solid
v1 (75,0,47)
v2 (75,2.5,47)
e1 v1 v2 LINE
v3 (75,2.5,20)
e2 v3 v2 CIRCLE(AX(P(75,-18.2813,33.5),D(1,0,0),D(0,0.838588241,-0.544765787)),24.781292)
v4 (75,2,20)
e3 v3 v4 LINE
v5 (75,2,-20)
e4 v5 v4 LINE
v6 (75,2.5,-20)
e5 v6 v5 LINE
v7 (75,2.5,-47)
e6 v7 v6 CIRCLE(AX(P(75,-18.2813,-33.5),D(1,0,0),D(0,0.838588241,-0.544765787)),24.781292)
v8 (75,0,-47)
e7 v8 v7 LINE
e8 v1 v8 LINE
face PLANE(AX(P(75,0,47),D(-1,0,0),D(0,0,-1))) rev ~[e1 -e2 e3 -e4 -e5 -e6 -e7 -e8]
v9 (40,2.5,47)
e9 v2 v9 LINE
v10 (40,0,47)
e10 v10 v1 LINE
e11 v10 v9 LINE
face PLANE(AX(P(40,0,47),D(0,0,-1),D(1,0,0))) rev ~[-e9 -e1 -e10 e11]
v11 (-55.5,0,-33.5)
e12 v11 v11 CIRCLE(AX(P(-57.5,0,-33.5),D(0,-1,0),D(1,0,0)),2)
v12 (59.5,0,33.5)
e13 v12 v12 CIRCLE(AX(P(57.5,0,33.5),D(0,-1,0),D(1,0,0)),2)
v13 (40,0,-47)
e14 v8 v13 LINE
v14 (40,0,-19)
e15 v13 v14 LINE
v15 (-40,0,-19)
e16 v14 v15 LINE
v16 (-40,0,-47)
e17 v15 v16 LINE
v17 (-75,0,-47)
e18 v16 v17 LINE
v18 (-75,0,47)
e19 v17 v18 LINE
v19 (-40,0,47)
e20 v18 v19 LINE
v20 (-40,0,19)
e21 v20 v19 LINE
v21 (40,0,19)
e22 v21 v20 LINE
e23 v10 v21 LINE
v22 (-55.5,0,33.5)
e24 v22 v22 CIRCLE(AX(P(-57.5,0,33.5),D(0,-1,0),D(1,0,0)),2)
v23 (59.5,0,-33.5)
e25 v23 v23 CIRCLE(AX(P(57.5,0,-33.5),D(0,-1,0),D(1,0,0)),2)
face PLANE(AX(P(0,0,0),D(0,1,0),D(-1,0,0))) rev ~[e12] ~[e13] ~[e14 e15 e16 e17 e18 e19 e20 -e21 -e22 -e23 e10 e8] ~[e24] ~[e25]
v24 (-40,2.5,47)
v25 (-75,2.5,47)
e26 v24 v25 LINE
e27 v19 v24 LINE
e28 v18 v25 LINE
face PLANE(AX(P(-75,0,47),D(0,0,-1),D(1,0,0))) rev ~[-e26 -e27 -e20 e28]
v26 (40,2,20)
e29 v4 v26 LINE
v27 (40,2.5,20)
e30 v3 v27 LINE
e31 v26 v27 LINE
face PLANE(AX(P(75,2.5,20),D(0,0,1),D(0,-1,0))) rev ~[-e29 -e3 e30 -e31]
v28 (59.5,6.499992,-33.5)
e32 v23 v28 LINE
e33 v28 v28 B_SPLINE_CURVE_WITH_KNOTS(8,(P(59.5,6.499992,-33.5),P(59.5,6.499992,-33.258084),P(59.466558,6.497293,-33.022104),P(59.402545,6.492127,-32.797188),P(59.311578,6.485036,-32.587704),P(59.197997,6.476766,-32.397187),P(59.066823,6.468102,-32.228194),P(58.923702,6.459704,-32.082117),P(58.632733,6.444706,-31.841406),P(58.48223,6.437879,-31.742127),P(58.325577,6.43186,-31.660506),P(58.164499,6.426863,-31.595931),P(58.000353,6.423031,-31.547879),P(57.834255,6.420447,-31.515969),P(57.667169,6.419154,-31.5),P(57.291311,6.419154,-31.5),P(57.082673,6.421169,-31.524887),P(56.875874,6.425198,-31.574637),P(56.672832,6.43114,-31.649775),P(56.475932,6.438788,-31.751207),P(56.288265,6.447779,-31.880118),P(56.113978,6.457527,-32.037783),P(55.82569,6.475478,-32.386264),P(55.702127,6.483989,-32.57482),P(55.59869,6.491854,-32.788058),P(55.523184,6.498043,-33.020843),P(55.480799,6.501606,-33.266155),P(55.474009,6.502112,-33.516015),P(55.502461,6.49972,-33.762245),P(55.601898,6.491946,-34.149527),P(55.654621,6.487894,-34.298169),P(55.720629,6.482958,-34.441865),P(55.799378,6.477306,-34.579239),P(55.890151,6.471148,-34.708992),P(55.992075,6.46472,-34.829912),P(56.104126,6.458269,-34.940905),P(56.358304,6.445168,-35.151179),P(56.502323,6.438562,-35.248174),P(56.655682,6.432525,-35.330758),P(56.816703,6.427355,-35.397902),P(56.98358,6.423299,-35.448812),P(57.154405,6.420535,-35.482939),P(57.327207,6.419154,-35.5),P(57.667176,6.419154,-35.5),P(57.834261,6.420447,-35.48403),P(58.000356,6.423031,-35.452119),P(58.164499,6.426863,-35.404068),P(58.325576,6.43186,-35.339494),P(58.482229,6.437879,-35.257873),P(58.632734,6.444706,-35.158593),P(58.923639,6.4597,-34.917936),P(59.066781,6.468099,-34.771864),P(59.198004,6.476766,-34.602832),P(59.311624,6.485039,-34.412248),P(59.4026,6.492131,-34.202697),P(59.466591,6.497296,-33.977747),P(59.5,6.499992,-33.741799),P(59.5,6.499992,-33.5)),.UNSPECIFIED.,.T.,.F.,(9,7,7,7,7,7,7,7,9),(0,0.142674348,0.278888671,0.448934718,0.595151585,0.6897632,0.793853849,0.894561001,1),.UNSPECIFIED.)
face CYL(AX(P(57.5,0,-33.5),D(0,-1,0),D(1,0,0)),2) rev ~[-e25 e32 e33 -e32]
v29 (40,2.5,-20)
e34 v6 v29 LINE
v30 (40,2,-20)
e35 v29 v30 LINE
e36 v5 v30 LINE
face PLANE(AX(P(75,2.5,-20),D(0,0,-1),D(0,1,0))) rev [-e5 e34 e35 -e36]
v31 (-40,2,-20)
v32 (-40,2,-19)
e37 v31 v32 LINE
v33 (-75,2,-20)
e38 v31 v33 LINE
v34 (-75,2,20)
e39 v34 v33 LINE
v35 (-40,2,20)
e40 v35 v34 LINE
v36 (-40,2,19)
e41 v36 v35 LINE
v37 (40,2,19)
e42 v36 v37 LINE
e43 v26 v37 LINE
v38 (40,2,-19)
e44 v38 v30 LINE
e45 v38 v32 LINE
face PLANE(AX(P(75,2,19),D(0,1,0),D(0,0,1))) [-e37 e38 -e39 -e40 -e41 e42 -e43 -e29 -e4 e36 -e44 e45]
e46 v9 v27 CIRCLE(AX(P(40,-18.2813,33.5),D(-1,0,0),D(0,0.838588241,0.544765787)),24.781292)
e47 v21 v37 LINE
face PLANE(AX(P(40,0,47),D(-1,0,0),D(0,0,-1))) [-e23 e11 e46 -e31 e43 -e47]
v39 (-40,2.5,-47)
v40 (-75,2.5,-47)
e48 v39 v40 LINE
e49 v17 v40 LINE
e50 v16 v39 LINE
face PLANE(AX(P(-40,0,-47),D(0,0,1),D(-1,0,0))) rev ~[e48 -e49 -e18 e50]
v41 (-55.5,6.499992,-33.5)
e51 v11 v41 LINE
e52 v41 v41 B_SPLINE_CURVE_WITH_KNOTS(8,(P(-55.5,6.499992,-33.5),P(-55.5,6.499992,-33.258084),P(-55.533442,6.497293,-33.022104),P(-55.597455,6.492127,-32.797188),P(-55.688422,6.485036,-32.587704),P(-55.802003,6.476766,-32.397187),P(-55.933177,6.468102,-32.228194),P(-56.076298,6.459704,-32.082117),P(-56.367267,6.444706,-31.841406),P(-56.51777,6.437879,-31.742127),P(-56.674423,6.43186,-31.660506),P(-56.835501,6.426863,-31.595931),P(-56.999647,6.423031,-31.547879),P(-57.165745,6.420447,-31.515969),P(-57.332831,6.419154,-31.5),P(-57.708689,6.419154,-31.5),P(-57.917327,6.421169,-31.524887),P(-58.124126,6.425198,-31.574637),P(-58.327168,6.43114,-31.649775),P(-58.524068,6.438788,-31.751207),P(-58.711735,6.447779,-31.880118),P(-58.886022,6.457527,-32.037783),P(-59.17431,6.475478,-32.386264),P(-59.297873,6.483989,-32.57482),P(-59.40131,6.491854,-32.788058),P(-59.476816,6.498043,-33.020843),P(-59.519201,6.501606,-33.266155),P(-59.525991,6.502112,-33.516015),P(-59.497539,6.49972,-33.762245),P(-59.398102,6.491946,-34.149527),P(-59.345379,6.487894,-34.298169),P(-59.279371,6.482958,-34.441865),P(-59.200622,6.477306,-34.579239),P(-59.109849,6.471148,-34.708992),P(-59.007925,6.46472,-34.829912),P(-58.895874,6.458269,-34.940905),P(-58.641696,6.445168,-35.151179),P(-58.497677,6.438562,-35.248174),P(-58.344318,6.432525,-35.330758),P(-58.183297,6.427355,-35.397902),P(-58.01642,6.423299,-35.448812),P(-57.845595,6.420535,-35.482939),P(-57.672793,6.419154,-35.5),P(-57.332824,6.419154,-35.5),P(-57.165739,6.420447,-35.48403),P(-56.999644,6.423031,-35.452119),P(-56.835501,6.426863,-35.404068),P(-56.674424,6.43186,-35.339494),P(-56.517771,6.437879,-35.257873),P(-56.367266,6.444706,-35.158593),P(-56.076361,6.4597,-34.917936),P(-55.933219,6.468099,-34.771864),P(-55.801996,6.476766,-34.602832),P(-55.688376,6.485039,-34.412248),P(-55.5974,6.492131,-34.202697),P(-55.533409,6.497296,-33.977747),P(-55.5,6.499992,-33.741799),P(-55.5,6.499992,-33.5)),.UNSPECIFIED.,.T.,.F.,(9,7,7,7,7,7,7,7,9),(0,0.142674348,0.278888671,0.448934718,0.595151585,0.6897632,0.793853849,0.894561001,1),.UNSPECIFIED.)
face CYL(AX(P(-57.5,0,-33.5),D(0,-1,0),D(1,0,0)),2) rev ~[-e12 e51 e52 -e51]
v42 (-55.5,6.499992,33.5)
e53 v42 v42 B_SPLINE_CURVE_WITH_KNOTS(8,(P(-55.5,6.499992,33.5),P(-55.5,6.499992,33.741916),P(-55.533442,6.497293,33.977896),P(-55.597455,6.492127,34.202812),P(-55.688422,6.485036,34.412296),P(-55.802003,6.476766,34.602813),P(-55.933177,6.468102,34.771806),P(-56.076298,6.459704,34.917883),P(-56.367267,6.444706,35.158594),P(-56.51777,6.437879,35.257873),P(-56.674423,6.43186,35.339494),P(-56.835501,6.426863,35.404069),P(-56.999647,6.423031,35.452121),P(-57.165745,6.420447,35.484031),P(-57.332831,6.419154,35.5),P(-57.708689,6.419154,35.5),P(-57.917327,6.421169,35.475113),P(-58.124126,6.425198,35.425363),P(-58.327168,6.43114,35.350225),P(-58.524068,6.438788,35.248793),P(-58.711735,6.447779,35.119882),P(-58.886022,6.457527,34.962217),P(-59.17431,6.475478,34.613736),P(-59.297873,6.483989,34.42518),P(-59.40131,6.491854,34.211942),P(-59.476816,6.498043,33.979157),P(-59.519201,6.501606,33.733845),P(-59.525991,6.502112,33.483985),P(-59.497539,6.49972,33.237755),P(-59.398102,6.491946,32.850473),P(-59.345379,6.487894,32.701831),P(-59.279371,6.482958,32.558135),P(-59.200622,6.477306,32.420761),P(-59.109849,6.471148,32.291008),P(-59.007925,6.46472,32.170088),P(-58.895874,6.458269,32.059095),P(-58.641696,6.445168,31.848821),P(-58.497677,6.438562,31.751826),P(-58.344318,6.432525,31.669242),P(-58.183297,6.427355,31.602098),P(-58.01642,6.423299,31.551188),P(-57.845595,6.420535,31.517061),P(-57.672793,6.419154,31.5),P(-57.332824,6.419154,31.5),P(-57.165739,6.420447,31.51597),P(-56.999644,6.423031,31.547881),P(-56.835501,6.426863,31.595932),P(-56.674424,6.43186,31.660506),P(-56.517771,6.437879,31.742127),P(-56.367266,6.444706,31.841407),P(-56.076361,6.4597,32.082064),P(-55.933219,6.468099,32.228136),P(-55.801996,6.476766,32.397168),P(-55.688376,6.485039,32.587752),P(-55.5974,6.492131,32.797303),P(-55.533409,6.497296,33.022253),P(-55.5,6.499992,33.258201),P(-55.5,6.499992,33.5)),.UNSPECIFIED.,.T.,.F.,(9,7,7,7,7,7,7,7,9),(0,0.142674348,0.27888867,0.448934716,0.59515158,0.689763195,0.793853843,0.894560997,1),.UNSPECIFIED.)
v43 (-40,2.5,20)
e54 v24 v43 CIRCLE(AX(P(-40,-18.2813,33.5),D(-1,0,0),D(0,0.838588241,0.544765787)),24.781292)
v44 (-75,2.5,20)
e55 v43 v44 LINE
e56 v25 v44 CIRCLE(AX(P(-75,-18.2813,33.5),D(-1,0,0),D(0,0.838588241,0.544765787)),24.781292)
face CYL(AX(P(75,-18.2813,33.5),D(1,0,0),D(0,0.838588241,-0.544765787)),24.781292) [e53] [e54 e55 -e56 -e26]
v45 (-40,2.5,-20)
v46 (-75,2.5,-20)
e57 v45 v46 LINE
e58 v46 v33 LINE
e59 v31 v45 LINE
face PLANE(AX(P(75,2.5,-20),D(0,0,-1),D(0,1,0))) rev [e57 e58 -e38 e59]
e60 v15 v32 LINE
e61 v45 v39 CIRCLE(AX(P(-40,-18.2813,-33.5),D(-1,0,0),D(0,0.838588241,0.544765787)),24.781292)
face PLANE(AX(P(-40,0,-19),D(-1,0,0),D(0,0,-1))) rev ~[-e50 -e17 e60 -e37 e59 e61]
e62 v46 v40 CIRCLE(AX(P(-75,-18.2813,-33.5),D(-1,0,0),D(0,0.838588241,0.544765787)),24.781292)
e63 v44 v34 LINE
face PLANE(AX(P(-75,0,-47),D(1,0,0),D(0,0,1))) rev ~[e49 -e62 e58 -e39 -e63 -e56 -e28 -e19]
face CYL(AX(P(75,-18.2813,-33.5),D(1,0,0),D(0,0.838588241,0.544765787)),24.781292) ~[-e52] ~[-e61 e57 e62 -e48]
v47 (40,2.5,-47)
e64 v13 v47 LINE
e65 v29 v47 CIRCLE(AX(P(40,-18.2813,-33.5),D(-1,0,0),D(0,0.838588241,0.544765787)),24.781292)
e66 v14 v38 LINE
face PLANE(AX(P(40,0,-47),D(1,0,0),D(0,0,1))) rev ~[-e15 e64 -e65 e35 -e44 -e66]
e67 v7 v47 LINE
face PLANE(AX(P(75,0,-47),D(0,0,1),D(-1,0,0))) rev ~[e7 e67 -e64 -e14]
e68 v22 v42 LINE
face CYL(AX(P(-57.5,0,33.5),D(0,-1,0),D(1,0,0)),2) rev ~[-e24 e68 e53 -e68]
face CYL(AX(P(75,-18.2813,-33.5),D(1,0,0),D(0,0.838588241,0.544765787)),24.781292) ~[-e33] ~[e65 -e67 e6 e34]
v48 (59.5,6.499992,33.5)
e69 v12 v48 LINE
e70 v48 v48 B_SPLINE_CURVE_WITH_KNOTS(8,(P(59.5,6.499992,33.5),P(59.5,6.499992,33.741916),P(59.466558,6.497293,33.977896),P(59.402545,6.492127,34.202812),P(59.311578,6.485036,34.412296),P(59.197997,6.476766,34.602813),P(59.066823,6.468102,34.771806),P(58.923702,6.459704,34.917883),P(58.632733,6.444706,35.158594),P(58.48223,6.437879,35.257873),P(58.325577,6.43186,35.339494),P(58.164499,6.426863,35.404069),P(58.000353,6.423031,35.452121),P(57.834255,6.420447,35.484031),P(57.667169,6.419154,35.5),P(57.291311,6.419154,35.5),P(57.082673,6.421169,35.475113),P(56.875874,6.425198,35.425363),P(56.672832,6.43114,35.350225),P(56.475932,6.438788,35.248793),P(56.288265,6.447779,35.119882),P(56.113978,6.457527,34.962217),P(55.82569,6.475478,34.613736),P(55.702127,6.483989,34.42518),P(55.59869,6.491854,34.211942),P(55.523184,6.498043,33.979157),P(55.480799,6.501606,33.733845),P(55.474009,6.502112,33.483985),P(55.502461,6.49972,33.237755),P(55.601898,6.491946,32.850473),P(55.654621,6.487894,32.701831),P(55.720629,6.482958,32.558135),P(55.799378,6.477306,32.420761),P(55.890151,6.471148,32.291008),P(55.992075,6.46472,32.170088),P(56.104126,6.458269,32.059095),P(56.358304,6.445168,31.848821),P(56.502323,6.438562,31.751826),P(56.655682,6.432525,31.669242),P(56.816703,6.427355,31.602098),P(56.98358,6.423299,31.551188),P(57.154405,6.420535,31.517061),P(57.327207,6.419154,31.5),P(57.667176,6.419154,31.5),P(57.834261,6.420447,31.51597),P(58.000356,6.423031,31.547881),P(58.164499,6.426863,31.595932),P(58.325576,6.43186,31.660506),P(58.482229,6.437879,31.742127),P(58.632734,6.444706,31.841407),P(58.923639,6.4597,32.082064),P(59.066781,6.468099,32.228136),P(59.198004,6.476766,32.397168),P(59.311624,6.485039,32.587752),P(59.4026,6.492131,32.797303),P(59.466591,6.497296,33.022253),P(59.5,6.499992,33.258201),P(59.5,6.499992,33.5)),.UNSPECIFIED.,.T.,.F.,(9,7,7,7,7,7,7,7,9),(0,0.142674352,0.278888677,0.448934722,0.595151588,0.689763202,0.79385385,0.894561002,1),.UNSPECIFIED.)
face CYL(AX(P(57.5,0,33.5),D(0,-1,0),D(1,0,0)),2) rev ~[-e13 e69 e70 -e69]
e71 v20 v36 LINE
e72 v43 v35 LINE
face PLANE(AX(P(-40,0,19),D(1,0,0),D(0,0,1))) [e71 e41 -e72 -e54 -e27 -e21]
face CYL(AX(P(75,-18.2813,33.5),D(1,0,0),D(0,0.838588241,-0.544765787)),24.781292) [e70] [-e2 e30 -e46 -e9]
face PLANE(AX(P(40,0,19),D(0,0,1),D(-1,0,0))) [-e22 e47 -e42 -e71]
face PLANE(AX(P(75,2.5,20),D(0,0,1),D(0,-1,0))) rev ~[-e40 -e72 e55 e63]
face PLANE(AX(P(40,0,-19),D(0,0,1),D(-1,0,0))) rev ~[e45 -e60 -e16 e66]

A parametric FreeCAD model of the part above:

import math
import FreeCAD as App
import Part
import Sketcher

doc = App.newDocument("Part")
body = doc.addObject("PartDesign::Body", "Body")

sketch1 = doc.addObject("Sketcher::SketchObject", "Sketch")
body.addObject(sketch1)
sketch1.AttachmentSupport = (doc.XZ_Plane, [""])
sketch1.MapMode = "FlatFace"
sketch1.addGeometry(Part.LineSegment(App.Vector(-40, -47, 0), App.Vector(-75, -47, 0)), False)
sketch1.addGeometry(Part.LineSegment(App.Vector(-75, -47, 0), App.Vector(-75, 47, 0)), False)
sketch1.addGeometry(Part.LineSegment(App.Vector(-75, 47, 0), App.Vector(-40, 47, 0)), False)
sketch1.addGeometry(Part.LineSegment(App.Vector(-40, 47, 0), App.Vector(-40, 19, 0)), False)
sketch1.addGeometry(Part.LineSegment(App.Vector(-40, 19, 0), App.Vector(40, 19, 0)), False)
sketch1.addGeometry(Part.LineSegment(App.Vector(40, 19, 0), App.Vector(40, 47, 0)), False)
sketch1.addGeometry(Part.LineSegment(App.Vector(40, 47, 0), App.Vector(75, 47, 0)), False)
sketch1.addGeometry(Part.LineSegment(App.Vector(75, 47, 0), App.Vector(75, -47, 0)), False)
sketch1.addGeometry(Part.LineSegment(App.Vector(75, -47, 0), App.Vector(40, -47, 0)), False)
sketch1.addGeometry(Part.LineSegment(App.Vector(40, -47, 0), App.Vector(40, -19, 0)), False)
sketch1.addGeometry(Part.LineSegment(App.Vector(40, -19, 0), App.Vector(-40, -19, 0)), False)
sketch1.addGeometry(Part.LineSegment(App.Vector(-40, -19, 0), App.Vector(-40, -47, 0)), False)
sketch1.addConstraint(Sketcher.Constraint("Coincident", 0, 2, 1, 1))
sketch1.addConstraint(Sketcher.Constraint("Coincident", 1, 2, 2, 1))
sketch1.addConstraint(Sketcher.Constraint("Coincident", 2, 2, 3, 1))
sketch1.addConstraint(Sketcher.Constraint("Coincident", 3, 2, 4, 1))
sketch1.addConstraint(Sketcher.Constraint("Coincident", 4, 2, 5, 1))
sketch1.addConstraint(Sketcher.Constraint("Coincident", 5, 2, 6, 1))
sketch1.addConstraint(Sketcher.Constraint("Coincident", 6, 2, 7, 1))
sketch1.addConstraint(Sketcher.Constraint("Coincident", 7, 2, 8, 1))
sketch1.addConstraint(Sketcher.Constraint("Coincident", 8, 2, 9, 1))
sketch1.addConstraint(Sketcher.Constraint("Coincident", 9, 2, 10, 1))
sketch1.addConstraint(Sketcher.Constraint("Coincident", 10, 2, 11, 1))
sketch1.addConstraint(Sketcher.Constraint("Coincident", 11, 2, 0, 1))
sketch1.addConstraint(Sketcher.Constraint("Horizontal", 0))
sketch1.addConstraint(Sketcher.Constraint("Vertical", 1))
sketch1.addConstraint(Sketcher.Constraint("Horizontal", 2))
sketch1.addConstraint(Sketcher.Constraint("Vertical", 3))
sketch1.addConstraint(Sketcher.Constraint("Horizontal", 4))
sketch1.addConstraint(Sketcher.Constraint("Vertical", 5))
sketch1.addConstraint(Sketcher.Constraint("Horizontal", 6))
sketch1.addConstraint(Sketcher.Constraint("Vertical", 7))
sketch1.addConstraint(Sketcher.Constraint("Horizontal", 8))
sketch1.addConstraint(Sketcher.Constraint("Vertical", 9))
sketch1.addConstraint(Sketcher.Constraint("Horizontal", 10))
sketch1.addConstraint(Sketcher.Constraint("Vertical", 11))
sketch1.addConstraint(Sketcher.Constraint("Symmetric", 0, 2, 6, 2, -1, 1))
sketch1.addConstraint(Sketcher.Constraint("Symmetric", 2, 2, 8, 2, -1, 1))
sketch1.addConstraint(Sketcher.Constraint("Symmetric", 4, 2, 10, 2, -1, 1))
sketch1.addConstraint(Sketcher.Constraint("Symmetric", 2, 2, 5, 2, -2))
sketch1.addConstraint(Sketcher.Constraint("DistanceX", 0, 2, 0, 1, 35.0))
sketch1.addConstraint(Sketcher.Constraint("DistanceX", 4, 1, 4, 2, 80.0))
sketch1.addConstraint(Sketcher.Constraint("DistanceY", 1, 1, 1, 2, 94.0))
sketch1.addConstraint(Sketcher.Constraint("DistanceY", 3, 2, 3, 1, 28.0))
pad1 = doc.addObject("PartDesign::Pad", "Pad")
body.addObject(pad1)
pad1.Profile = sketch1
pad1.Length = 6.5
pad1.Reversed = True

sketch2 = doc.addObject("Sketcher::SketchObject", "Sketch001")
body.addObject(sketch2)
sketch2.AttachmentSupport = (doc.XZ_Plane, [""])
sketch2.MapMode = "FlatFace"
sketch2.AttachmentOffset = App.Placement(App.Vector(0, 0, -6.5), App.Rotation())
sketch2.addGeometry(Part.LineSegment(App.Vector(75, -19, 0), App.Vector(-75, -19, 0)), False)
sketch2.addGeometry(Part.LineSegment(App.Vector(-75, -19, 0), App.Vector(-75, 19, 0)), False)
sketch2.addGeometry(Part.LineSegment(App.Vector(-75, 19, 0), App.Vector(75, 19, 0)), False)
sketch2.addGeometry(Part.LineSegment(App.Vector(75, 19, 0), App.Vector(75, -19, 0)), False)
sketch2.addConstraint(Sketcher.Constraint("Coincident", 0, 2, 1, 1))
sketch2.addConstraint(Sketcher.Constraint("Coincident", 1, 2, 2, 1))
sketch2.addConstraint(Sketcher.Constraint("Coincident", 2, 2, 3, 1))
sketch2.addConstraint(Sketcher.Constraint("Coincident", 3, 2, 0, 1))
sketch2.addConstraint(Sketcher.Constraint("Horizontal", 0))
sketch2.addConstraint(Sketcher.Constraint("Vertical", 1))
sketch2.addConstraint(Sketcher.Constraint("Horizontal", 2))
sketch2.addConstraint(Sketcher.Constraint("Vertical", 3))
sketch2.addConstraint(Sketcher.Constraint("Symmetric", 0, 2, 2, 2, -1, 1))
sketch2.addConstraint(Sketcher.Constraint("DistanceX", 0, 2, 0, 1, 150.0))
sketch2.addConstraint(Sketcher.Constraint("DistanceY", 1, 1, 1, 2, 38.0))
pocket1 = doc.addObject("PartDesign::Pocket", "Pocket")
body.addObject(pocket1)
pocket1.Profile = sketch2
pocket1.Length = 4.5
pocket1.Reversed = True

sketch3 = doc.addObject("Sketcher::SketchObject", "Sketch002")
body.addObject(sketch3)
sketch3.AttachmentSupport = (doc.YZ_Plane, [""])
sketch3.MapMode = "FlatFace"
sketch3.AttachmentOffset = App.Placement(App.Vector(0, 0, 75), App.Rotation())
sketch3.addGeometry(Part.LineSegment(App.Vector(2, 19, 0), App.Vector(6.5, 19, 0)), False)
sketch3.addGeometry(Part.LineSegment(App.Vector(6.5, 19, 0), App.Vector(6.5, 33.5, 0)), False)
sketch3.addGeometry(Part.ArcOfCircle(Part.Circle(App.Vector(-18.3, 33.5, 0), App.Vector(0, 0, 1), 24.8), math.radians(-33), math.radians(0)), False)
sketch3.addGeometry(Part.LineSegment(App.Vector(2.5, 20, 0), App.Vector(2, 20, 0)), False)
sketch3.addGeometry(Part.LineSegment(App.Vector(2, 20, 0), App.Vector(2, 19, 0)), False)
sketch3.addGeometry(Part.ArcOfCircle(Part.Circle(App.Vector(-18.3, 33.5, 0), App.Vector(0, 0, 1), 24.8), math.radians(0), math.radians(33)), False)
sketch3.addGeometry(Part.LineSegment(App.Vector(6.5, 33.5, 0), App.Vector(6.5, 47, 0)), False)
sketch3.addGeometry(Part.LineSegment(App.Vector(6.5, 47, 0), App.Vector(2.5, 47, 0)), False)
sketch3.addConstraint(Sketcher.Constraint("Coincident", 0, 2, 1, 1))
sketch3.addConstraint(Sketcher.Constraint("Tangent", 1, 2, 2, 2))
sketch3.addConstraint(Sketcher.Constraint("Coincident", 2, 1, 3, 1))
sketch3.addConstraint(Sketcher.Constraint("Coincident", 3, 2, 4, 1))
sketch3.addConstraint(Sketcher.Constraint("Coincident", 4, 2, 0, 1))
sketch3.addConstraint(Sketcher.Constraint("Tangent", 5, 1, 6, 1))
sketch3.addConstraint(Sketcher.Constraint("Coincident", 6, 2, 7, 1))
sketch3.addConstraint(Sketcher.Constraint("Coincident", 7, 2, 5, 2))
sketch3.addConstraint(Sketcher.Constraint("Horizontal", 0))
sketch3.addConstraint(Sketcher.Constraint("Vertical", 1))
sketch3.addConstraint(Sketcher.Constraint("Horizontal", 3))
sketch3.addConstraint(Sketcher.Constraint("Vertical", 4))
sketch3.addConstraint(Sketcher.Constraint("Vertical", 6))
sketch3.addConstraint(Sketcher.Constraint("Horizontal", 7))
sketch3.addConstraint(Sketcher.Constraint("Coincident", 5, 3, 2, 3))
sketch3.addConstraint(Sketcher.Constraint("Equal", 2, 5))
sketch3.addConstraint(Sketcher.Constraint("Vertical", 2, 1, 7, 2))
sketch3.addConstraint(Sketcher.Constraint("DistanceY", 6, 1, 6, 2, 13.5))
sketch3.addConstraint(Sketcher.Constraint("DistanceX", -1, 1, 0, 2, 6.5))
sketch3.addConstraint(Sketcher.Constraint("DistanceX", -1, 1, 2, 1, 2.5))
sketch3.addConstraint(Sketcher.Constraint("DistanceY", 4, 2, 4, 1, 1.0))
sketch3.addConstraint(Sketcher.Constraint("DistanceX", 0, 1, 0, 2, 4.5))
sketch3.addConstraint(Sketcher.Constraint("DistanceY", -1, 1, 0, 2, 19.0))
pocket2 = doc.addObject("PartDesign::Pocket", "Pocket001")
body.addObject(pocket2)
pocket2.Profile = sketch3
pocket2.Type = "ThroughAll"
doc.recompute()

mirrored = doc.addObject("PartDesign::Mirrored", "Mirrored")
body.addObject(mirrored)
mirrored.Originals = [pocket2]
mirrored.MirrorPlane = (doc.XY_Plane, [""])
body.Tip = mirrored

sketch4 = doc.addObject("Sketcher::SketchObject", "Sketch003")
body.addObject(sketch4)
sketch4.AttachmentSupport = (doc.XZ_Plane, [""])
sketch4.MapMode = "FlatFace"
sketch4.addGeometry(Part.Circle(App.Vector(57.5, 33.5, 0), App.Vector(0, 0, 1), 2), False)
sketch4.addGeometry(Part.Circle(App.Vector(57.5, -33.5, 0), App.Vector(0, 0, 1), 2), False)
sketch4.addGeometry(Part.Circle(App.Vector(-57.5, 33.5, 0), App.Vector(0, 0, 1), 2), False)
sketch4.addGeometry(Part.Circle(App.Vector(-57.5, -33.5, 0), App.Vector(0, 0, 1), 2), False)
sketch4.addConstraint(Sketcher.Constraint("Equal", 0, 1))
sketch4.addConstraint(Sketcher.Constraint("Equal", 1, 2))
sketch4.addConstraint(Sketcher.Constraint("Equal", 2, 3))
sketch4.addConstraint(Sketcher.Constraint("Symmetric", 1, 3, 2, 3, -1, 1))
sketch4.addConstraint(Sketcher.Constraint("Symmetric", 0, 3, 3, 3, -1, 1))
sketch4.addConstraint(Sketcher.Constraint("Symmetric", 0, 3, 2, 3, -2))
sketch4.addConstraint(Sketcher.Constraint("Diameter", 0, 4.0))
sketch4.addConstraint(Sketcher.Constraint("DistanceY", 1, 3, 0, 3, 67.0))
sketch4.addConstraint(Sketcher.Constraint("DistanceX", 2, 3, 0, 3, 115.0))
pocket3 = doc.addObject("PartDesign::Pocket", "Pocket002")
body.addObject(pocket3)
pocket3.Profile = sketch4
pocket3.Type = "ThroughAll"

doc.recompute()
